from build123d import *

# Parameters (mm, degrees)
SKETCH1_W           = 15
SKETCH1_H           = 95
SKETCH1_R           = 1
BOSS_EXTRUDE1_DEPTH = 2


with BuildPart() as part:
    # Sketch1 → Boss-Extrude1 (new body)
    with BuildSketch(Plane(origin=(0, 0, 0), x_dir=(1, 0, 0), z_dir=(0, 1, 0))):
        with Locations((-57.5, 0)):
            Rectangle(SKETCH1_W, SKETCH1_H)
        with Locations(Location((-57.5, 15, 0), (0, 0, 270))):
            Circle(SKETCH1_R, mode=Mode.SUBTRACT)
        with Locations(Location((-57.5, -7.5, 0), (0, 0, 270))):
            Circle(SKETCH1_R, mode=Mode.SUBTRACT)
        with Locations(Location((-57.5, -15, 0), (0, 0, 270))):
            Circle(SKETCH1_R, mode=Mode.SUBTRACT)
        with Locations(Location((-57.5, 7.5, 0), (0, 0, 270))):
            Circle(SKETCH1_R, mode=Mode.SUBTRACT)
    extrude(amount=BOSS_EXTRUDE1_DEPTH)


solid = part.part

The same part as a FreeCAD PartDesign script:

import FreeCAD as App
import Part
import Sketcher
from FreeCAD import Vector


def add_polygon(sketch, points):
    """Adds a closed chain of lines whose ends are joined by coincident constraints."""
    first, n = sketch.GeometryCount, len(points)
    for a, b in zip(points, points[1:] + points[:1]):
        sketch.addGeometry(Part.LineSegment(App.Vector(*a, 0), App.Vector(*b, 0)), False)
    for i in range(n):
        sketch.addConstraint(Sketcher.Constraint("Coincident", first + i, 2, first + (i + 1) % n, 1))

doc = App.newDocument("Part")
body = doc.addObject("PartDesign::Body", "Body")

sketch1 = body.newObject("Sketcher::SketchObject", "Sketch")
sketch1.AttachmentSupport = (doc.getObject("XZ_Plane"), [""])
sketch1.MapMode = "FlatFace"
add_polygon(sketch1, [(-65, -47.5), (-65, 47.5), (-50, 47.5), (-50, -47.5)])
sketch1.addGeometry(Part.Circle(Vector(-57.5, 15, 0), Vector(0, 0, 1), 1), False)
sketch1.addGeometry(Part.Circle(Vector(-57.5, 7.5, 0), Vector(0, 0, 1), 1), False)
sketch1.addGeometry(Part.Circle(Vector(-57.5, -7.5, 0), Vector(0, 0, 1), 1), False)
sketch1.addGeometry(Part.Circle(Vector(-57.5, -15, 0), Vector(0, 0, 1), 1), False)
sketch1.addConstraint(Sketcher.Constraint("Vertical", 0))
sketch1.addConstraint(Sketcher.Constraint("Horizontal", 1))
sketch1.addConstraint(Sketcher.Constraint("Vertical", 2))
sketch1.addConstraint(Sketcher.Constraint("Horizontal", 3))
sketch1.addConstraint(Sketcher.Constraint("Equal", 4, 5))
sketch1.addConstraint(Sketcher.Constraint("Equal", 5, 6))
sketch1.addConstraint(Sketcher.Constraint("Equal", 6, 7))
sketch1.addConstraint(Sketcher.Constraint("Symmetric", 5, 3, 6, 3, -1))
sketch1.addConstraint(Sketcher.Constraint("Symmetric", 4, 3, 7, 3, -1))
sketch1.addConstraint(Sketcher.Constraint("Vertical", 4, 3, 5, 3))
sketch1.addConstraint(Sketcher.Constraint("Diameter", 4, 2.0))
sketch1.addConstraint(Sketcher.Constraint("DistanceX", 1, 1, 1, 2, 15.0))
sketch1.addConstraint(Sketcher.Constraint("DistanceY", 0, 1, 0, 2, 95.0))
sketch1.addConstraint(Sketcher.Constraint("DistanceY", -1, 1, 4, 3, 15.0))
sketch1.addConstraint(Sketcher.Constraint("DistanceX", 0, 2, -1, 1, 65.0))
sketch1.addConstraint(Sketcher.Constraint("DistanceY", 6, 3, 5, 3, 15.0))
sketch1.addConstraint(Sketcher.Constraint("DistanceY", 5, 3, 0, 2, 40.0))
sketch1.addConstraint(Sketcher.Constraint("DistanceX", 4, 3, -1, 1, 57.5))
pad1 = body.newObject("PartDesign::Pad", "Pad")
pad1.Profile = sketch1
pad1.Length = 2
pad1.Reversed = True

doc.recompute()
